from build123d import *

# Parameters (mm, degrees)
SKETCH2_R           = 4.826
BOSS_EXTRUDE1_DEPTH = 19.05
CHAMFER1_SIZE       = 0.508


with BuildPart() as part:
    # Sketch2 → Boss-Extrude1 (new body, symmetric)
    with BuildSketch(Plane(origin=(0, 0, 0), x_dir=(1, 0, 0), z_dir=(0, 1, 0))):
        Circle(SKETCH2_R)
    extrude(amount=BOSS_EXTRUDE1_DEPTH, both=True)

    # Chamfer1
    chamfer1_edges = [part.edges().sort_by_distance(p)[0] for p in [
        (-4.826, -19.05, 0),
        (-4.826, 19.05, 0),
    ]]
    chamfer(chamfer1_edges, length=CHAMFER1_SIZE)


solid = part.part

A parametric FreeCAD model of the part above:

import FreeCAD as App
import Part
import Sketcher
from FreeCAD import Vector
Q = App.Units.Quantity


def edges_at(feature, points):
    """Names of the edges that pass closest to the given points."""
    edges = feature.Shape.Edges
    near = lambda p: min(range(len(edges)), key=lambda i: edges[i].distToShape(Part.Vertex(*p))[0])
    return sorted({f"Edge{near(p) + 1}" for p in points})

doc = App.newDocument("Part")
body = doc.addObject("PartDesign::Body", "Body")

# Sketch on XZ plane
sketch1 = doc.addObject("Sketcher::SketchObject", "Sketch")
body.addObject(sketch1)
sketch1.AttachmentSupport = (doc.XZ_Plane, [""])
sketch1.MapMode = "FlatFace"
sketch1.addGeometry(Part.Circle(Vector(0, 0, 0), Vector(0, 0, 1), 4.8), False)
sketch1.addConstraint([
    Sketcher.Constraint("Coincident", 0, 3, -1, 1),
    Sketcher.Constraint("Diameter", 0, Q("0.38 in")),
])
pad1 = doc.addObject("PartDesign::Pad", "Pad")
body.addObject(pad1)
pad1.Profile = sketch1
pad1.Length = Q("1.5 in")
pad1.Midplane = True
doc.recompute()

chamfer = doc.addObject("PartDesign::Chamfer", "Chamfer")
body.addObject(chamfer)
chamfer.Base = (pad1, edges_at(pad1, [(-4.826, -19.05, 0), (-4.826, 19.05, 0)]))
chamfer.Size = Q("0.02 in")

doc.recompute()
